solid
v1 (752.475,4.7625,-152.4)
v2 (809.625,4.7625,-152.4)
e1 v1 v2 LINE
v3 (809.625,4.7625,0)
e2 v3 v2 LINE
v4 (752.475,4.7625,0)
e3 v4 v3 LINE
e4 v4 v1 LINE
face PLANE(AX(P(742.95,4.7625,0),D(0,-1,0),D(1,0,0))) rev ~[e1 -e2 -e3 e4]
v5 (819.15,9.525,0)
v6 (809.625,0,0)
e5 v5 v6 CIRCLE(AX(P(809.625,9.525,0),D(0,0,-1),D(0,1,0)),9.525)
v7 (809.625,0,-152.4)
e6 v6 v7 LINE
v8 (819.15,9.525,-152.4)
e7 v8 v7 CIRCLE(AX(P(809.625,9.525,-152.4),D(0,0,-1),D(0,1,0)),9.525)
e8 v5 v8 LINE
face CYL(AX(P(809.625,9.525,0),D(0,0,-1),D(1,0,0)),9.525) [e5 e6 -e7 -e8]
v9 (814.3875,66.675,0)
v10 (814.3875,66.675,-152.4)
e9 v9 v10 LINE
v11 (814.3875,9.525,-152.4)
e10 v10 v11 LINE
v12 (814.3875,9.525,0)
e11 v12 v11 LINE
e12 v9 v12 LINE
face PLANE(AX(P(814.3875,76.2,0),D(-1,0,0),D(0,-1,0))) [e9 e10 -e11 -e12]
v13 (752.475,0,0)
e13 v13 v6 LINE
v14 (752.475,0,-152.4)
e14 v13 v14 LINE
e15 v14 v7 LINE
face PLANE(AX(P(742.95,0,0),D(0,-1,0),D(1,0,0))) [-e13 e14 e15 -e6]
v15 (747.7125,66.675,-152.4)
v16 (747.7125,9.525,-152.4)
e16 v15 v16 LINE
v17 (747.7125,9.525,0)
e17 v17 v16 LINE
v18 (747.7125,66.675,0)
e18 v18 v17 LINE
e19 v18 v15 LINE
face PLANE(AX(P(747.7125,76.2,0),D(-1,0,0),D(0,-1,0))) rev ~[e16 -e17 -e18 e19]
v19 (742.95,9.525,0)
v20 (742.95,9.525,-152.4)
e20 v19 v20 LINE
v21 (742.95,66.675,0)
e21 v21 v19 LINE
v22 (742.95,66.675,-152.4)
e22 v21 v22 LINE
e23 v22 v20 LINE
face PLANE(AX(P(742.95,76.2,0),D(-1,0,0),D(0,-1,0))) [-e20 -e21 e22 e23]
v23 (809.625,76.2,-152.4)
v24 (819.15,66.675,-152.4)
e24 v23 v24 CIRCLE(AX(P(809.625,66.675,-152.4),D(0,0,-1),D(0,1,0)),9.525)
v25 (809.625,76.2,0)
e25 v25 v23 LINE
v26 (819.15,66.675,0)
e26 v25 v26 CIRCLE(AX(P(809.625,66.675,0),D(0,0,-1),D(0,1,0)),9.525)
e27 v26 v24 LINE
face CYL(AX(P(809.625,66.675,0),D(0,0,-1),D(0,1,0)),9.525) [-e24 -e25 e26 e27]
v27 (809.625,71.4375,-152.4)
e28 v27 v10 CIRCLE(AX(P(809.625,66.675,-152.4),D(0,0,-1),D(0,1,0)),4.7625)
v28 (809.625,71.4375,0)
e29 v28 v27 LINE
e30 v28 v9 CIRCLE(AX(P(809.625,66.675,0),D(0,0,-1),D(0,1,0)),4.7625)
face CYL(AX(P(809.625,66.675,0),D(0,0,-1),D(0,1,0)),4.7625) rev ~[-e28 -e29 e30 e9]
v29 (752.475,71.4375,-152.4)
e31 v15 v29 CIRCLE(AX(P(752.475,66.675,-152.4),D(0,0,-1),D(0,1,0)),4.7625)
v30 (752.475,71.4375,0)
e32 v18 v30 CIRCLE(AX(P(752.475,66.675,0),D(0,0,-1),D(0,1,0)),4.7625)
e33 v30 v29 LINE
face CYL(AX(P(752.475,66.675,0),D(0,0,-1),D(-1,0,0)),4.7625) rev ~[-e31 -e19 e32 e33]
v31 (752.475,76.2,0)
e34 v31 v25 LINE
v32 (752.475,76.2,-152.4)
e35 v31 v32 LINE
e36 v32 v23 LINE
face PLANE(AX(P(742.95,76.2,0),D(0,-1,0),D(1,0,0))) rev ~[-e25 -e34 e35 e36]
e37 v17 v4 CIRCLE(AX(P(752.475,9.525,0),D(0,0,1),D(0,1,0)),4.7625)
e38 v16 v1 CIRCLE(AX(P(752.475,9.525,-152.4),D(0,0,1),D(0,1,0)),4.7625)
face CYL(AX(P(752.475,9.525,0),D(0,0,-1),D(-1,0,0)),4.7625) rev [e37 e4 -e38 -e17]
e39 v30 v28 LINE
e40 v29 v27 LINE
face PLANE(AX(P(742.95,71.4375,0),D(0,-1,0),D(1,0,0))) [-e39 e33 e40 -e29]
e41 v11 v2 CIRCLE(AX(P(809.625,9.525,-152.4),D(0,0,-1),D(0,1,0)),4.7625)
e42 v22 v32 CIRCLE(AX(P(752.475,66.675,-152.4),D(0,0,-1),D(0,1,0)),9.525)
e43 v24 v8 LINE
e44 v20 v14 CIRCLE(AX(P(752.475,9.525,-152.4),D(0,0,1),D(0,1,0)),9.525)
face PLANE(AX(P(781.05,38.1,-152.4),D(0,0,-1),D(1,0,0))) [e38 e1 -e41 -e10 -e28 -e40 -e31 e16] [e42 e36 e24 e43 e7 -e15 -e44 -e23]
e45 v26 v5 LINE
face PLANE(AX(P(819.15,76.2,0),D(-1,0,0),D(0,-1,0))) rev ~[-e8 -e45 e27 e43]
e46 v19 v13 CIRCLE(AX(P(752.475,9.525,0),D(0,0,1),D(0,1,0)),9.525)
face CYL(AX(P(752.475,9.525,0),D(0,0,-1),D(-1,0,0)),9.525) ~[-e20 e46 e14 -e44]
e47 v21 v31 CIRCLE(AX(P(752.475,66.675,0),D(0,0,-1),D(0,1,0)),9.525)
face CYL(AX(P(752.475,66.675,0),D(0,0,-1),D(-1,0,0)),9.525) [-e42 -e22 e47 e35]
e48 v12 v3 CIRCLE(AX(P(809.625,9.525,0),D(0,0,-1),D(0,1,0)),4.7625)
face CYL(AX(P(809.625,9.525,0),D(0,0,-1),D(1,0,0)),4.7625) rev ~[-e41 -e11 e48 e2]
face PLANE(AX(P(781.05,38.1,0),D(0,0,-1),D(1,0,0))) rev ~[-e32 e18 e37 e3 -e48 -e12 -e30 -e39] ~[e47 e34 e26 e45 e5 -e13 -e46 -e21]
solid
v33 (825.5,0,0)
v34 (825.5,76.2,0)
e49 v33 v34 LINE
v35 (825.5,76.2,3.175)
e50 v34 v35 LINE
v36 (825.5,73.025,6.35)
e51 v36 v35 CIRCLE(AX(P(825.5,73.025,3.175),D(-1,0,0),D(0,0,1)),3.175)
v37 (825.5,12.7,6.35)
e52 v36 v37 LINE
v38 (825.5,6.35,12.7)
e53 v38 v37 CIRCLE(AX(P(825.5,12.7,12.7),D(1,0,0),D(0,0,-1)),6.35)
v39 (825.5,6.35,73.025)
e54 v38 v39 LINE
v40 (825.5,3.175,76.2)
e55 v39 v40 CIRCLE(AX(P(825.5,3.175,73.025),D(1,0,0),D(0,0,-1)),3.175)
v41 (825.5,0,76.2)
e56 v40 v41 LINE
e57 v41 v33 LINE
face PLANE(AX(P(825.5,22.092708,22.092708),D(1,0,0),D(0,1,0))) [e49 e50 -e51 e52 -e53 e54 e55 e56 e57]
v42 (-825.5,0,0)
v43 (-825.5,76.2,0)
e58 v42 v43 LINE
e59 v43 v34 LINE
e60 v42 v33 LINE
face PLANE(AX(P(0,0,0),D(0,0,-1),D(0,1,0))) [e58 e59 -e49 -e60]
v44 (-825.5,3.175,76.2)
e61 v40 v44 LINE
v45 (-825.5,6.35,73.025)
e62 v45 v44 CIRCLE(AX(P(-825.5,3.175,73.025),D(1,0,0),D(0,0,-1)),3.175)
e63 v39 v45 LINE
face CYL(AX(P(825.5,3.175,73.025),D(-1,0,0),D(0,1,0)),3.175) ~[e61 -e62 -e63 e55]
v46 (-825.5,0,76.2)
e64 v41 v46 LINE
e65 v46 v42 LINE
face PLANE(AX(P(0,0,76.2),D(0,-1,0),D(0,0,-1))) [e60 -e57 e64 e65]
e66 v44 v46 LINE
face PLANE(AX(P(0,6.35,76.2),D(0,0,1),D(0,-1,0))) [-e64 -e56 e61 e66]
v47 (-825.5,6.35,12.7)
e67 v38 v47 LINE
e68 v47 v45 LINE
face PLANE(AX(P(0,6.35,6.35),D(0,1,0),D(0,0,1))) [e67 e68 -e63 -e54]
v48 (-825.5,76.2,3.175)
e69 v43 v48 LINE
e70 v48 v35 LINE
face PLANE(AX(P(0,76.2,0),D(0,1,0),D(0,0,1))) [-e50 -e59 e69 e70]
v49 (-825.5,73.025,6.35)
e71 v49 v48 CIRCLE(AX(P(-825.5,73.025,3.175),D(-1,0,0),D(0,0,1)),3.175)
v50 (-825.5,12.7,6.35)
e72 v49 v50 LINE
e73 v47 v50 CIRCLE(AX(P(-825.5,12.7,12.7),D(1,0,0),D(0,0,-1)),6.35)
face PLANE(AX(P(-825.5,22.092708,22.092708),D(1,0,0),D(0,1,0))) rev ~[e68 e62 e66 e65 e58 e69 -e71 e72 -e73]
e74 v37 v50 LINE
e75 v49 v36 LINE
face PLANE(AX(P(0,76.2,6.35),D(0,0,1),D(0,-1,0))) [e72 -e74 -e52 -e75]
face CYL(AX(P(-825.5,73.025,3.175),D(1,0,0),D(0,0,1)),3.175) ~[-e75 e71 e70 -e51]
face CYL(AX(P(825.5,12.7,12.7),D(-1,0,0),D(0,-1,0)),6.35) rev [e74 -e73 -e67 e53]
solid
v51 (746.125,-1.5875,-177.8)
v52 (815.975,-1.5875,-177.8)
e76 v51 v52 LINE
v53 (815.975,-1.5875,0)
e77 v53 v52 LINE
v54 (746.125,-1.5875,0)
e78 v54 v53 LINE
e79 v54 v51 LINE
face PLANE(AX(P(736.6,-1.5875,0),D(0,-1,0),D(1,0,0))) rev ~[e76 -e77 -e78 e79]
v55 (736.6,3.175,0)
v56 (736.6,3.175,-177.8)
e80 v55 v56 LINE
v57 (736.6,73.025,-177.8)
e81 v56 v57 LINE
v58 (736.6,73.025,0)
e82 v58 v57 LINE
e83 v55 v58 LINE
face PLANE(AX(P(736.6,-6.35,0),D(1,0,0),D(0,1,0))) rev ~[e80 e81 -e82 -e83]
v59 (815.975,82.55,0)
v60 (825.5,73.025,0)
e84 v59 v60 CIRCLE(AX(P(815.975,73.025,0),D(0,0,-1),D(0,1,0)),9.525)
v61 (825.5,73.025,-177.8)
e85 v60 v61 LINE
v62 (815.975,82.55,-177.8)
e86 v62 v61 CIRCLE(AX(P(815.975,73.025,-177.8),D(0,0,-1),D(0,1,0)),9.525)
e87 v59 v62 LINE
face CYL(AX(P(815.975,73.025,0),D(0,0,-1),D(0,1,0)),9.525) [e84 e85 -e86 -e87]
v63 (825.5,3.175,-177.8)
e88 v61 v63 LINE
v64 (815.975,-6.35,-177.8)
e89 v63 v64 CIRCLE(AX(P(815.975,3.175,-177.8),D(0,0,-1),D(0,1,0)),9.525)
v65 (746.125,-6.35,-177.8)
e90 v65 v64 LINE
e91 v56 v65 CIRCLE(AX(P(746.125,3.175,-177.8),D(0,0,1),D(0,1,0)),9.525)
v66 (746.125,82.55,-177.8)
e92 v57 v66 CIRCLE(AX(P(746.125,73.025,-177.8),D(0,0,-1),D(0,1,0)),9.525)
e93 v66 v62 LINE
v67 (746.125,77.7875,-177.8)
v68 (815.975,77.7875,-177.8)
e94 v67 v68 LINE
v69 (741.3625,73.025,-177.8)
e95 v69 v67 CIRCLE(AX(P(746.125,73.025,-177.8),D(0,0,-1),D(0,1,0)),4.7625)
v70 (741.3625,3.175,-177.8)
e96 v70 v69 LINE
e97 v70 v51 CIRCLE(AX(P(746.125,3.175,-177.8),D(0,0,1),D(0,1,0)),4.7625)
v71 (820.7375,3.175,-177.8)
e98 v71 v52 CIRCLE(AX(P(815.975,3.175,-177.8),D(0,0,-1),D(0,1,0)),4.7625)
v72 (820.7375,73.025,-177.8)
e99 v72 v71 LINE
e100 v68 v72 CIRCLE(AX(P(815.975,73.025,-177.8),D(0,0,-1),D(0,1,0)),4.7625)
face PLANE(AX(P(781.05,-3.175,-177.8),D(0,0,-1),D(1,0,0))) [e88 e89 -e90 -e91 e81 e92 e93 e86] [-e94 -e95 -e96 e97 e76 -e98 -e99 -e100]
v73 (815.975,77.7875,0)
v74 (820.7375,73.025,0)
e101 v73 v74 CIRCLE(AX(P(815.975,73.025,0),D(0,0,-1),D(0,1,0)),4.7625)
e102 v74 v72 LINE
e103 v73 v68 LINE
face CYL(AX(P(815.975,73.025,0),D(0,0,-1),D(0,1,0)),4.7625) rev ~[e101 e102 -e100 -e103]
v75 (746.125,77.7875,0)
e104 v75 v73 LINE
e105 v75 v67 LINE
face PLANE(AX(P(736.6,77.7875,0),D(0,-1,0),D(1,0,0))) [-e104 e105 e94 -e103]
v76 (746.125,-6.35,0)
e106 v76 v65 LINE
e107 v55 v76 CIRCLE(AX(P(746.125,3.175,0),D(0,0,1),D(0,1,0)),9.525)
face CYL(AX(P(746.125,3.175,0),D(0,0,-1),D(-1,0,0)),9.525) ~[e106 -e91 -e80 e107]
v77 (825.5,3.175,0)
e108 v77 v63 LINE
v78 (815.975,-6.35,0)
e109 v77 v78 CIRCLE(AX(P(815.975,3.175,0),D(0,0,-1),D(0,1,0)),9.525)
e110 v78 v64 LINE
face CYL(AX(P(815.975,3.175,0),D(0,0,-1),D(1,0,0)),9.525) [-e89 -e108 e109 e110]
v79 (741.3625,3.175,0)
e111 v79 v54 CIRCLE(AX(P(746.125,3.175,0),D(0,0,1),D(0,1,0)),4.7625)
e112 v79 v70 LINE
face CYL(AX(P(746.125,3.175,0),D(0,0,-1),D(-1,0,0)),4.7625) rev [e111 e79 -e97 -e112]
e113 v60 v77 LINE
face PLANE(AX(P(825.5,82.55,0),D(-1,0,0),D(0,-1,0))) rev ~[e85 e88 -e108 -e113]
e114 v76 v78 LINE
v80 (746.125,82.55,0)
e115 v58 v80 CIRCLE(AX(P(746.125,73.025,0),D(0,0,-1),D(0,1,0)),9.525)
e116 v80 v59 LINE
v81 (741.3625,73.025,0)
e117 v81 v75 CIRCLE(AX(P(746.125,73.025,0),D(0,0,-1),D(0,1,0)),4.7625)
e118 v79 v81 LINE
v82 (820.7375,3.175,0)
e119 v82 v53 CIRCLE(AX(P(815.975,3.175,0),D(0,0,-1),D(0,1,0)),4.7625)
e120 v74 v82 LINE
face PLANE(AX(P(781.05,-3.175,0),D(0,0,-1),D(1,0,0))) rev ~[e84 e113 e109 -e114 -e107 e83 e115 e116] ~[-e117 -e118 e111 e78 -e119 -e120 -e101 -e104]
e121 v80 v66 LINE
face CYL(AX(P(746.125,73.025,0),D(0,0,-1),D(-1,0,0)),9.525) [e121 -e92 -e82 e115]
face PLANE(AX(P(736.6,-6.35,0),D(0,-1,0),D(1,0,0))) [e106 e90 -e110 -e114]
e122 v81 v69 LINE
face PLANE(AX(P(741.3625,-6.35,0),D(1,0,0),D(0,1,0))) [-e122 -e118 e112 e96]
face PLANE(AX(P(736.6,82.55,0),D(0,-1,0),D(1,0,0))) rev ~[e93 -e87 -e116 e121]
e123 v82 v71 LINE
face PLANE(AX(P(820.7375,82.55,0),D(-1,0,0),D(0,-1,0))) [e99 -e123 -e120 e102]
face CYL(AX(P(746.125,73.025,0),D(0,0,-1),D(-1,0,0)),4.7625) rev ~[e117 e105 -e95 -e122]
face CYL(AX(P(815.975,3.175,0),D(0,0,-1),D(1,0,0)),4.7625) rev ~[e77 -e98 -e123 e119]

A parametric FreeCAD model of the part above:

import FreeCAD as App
import Part
import Sketcher

V = App.Vector
Q = App.Units.Quantity


def edges_at(feature, points):
    """Names of the edges that pass closest to the given points."""
    edges = feature.Shape.Edges
    near = lambda p: min(range(len(edges)), key=lambda i: edges[i].distToShape(Part.Vertex(*p))[0])
    return sorted({f"Edge{near(p) + 1}" for p in points})


def faces_at(feature, points):
    """Names of the faces that lie closest to the given points."""
    faces = feature.Shape.Faces
    near = lambda p: min(range(len(faces)), key=lambda i: faces[i].distToShape(Part.Vertex(*p))[0])
    return sorted({f"Face{near(p) + 1}" for p in points})

doc = App.newDocument("Part")
params = doc.addObject("Spreadsheet::Sheet", "Params")
for row, (alias, value) in enumerate([
    ("sketch1_width", "3 in"),
    ("sketch1_width2", "2.75 in"),
    ("pad1_length", "65 in"),
    ("fillet_radius", "0.25 in"),
    ("fillet2_radius", "0.125 in"),
    ("sketch2_width", "3 in"),
    ("pad2_length", "6 in"),
    ("fillet3_radius", "0.375 in"),
    ("thickness_wall", "0.1875 in"),
    ("sketch3_width", "3.5 in"),
    ("pad3_length", "7 in"),
    ("fillet4_radius", "0.375 in"),
    ("thickness2_wall", "0.1875 in"),
], start=1):
    params.set(f"A{row}", alias)
    params.set(f"B{row}", "=" + value)
    params.setAlias(f"B{row}", alias)

body = doc.addObject("PartDesign::Body", "Body")

# Sketch on YZ plane
sketch1 = body.newObject("Sketcher::SketchObject", "Sketch")
sketch1.AttachmentSupport = (doc.getObject("YZ_Plane"), [""])
sketch1.MapMode = "FlatFace"
sketch1.addGeometry([
    Part.LineSegment(V(0, 76, 0), V(0, 0, 0)),  # 0
    Part.LineSegment(V(0, 0, 0), V(76, 0, 0)),  # 1
    Part.LineSegment(V(76, 0, 0), V(76, 6, 0)),  # 2
    Part.LineSegment(V(76, 6, 0), V(6, 6, 0)),  # 3
    Part.LineSegment(V(6, 6, 0), V(6, 76, 0)),  # 4
    Part.LineSegment(V(6, 76, 0), V(0, 76, 0)),  # 5
], False)
sketch1.addConstraint([
    Sketcher.Constraint("Coincident", 0, 2, 1, 1),
    Sketcher.Constraint("Coincident", 1, 2, 2, 1),
    Sketcher.Constraint("Coincident", 2, 2, 3, 1),
    Sketcher.Constraint("Coincident", 3, 2, 4, 1),
    Sketcher.Constraint("Coincident", 4, 2, 5, 1),
    Sketcher.Constraint("Coincident", 5, 2, 0, 1),
    Sketcher.Constraint("Vertical", 0),
    Sketcher.Constraint("Horizontal", 1),
    Sketcher.Constraint("Vertical", 2),
    Sketcher.Constraint("Horizontal", 3),
    Sketcher.Constraint("Vertical", 4),
    Sketcher.Constraint("Horizontal", 5),
    Sketcher.Constraint("Coincident", 0, 2, -1, 1),
    Sketcher.Constraint("Equal", 1, 0),
    Sketcher.Constraint("Equal", 5, 2),
    Sketcher.Constraint("DistanceX", 1, 1, 1, 2, Q("3 in")),
    Sketcher.Constraint("DistanceX", 3, 2, 3, 1, Q("2.75 in")),
])
sketch1.setExpression("Constraints[15]", "Params.sketch1_width")
sketch1.setExpression("Constraints[16]", "Params.sketch1_width2")
pad1 = body.newObject("PartDesign::Pad", "Pad")
pad1.Profile = sketch1
pad1.setExpression("Length", "Params.pad1_length")
pad1.Midplane = True
doc.recompute()

fillet = body.newObject("PartDesign::Fillet", "Fillet")
fillet.Base = (pad1, edges_at(pad1, [(0, 6.35, 6.35)]))
fillet.setExpression("Radius", "Params.fillet_radius")
doc.recompute()

fillet2 = body.newObject("PartDesign::Fillet", "Fillet001")
fillet2.Base = (fillet, edges_at(fillet, [(0, 6.35, 76.2), (0, 76.2, 6.35)]))
fillet2.setExpression("Radius", "Params.fillet2_radius")
body2 = doc.addObject("PartDesign::Body", "Body001")

# Sketch on XY plane
sketch2 = body2.newObject("Sketcher::SketchObject", "Sketch001")
sketch2.AttachmentSupport = (doc.getObject("XY_Plane001"), [""])
sketch2.MapMode = "FlatFace"
sketch2.addGeometry([
    Part.LineSegment(V(743, 0, 0), V(743, 76, 0)),
    Part.LineSegment(V(743, 76, 0), V(819, 76, 0)),
    Part.LineSegment(V(819, 76, 0), V(819, 0, 0)),
    Part.LineSegment(V(819, 0, 0), V(743, 0, 0)),
], False)
sketch2.addConstraint([
    Sketcher.Constraint("Coincident", 0, 2, 1, 1),
    Sketcher.Constraint("Coincident", 1, 2, 2, 1),
    Sketcher.Constraint("Coincident", 2, 2, 3, 1),
    Sketcher.Constraint("Coincident", 3, 2, 0, 1),
    Sketcher.Constraint("Vertical", 0),
    Sketcher.Constraint("Horizontal", 1),
    Sketcher.Constraint("Vertical", 2),
    Sketcher.Constraint("Horizontal", 3),
    Sketcher.Constraint("PointOnObject", 2, 2, -1),
    Sketcher.Constraint("Equal", 3, 0),
    Sketcher.Constraint("DistanceX", 1, 1, 1, 2, Q("3 in")),
    Sketcher.Constraint("DistanceX", -1, 1, 0, 2, Q("29.25 in")),
])
sketch2.setExpression("Constraints[10]", "Params.sketch2_width")
pad2 = body2.newObject("PartDesign::Pad", "Pad001")
pad2.Profile = sketch2
pad2.setExpression("Length", "Params.pad2_length")
pad2.Reversed = True
doc.recompute()

fillet3 = body2.newObject("PartDesign::Fillet", "Fillet002")
fillet3.Base = (pad2, edges_at(pad2, [
    (742.95, 76.2, -76.2),
    (742.95, 0, -76.2),
    (819.15, 76.2, -76.2),
    (819.15, 0, -76.2),
]))
fillet3.setExpression("Radius", "Params.fillet3_radius")
doc.recompute()

thickness = body2.newObject("PartDesign::Thickness", "Thickness")
thickness.Base = (fillet3, faces_at(fillet3, [(781.05, 38.1, -152.4), (781.05, 38.1, 0)]))
thickness.setExpression("Value", "Params.thickness_wall")
thickness.Reversed = True
thickness.Join = "Arc"
body3 = doc.addObject("PartDesign::Body", "Body002")

# Sketch on XY plane
sketch3 = body3.newObject("Sketcher::SketchObject", "Sketch002")
sketch3.AttachmentSupport = (doc.getObject("XY_Plane002"), [""])
sketch3.MapMode = "FlatFace"
sketch3.addGeometry([
    Part.LineSegment(V(737, -6, 0), V(737, 83, 0)),
    Part.LineSegment(V(737, 83, 0), V(826, 83, 0)),
    Part.LineSegment(V(826, 83, 0), V(826, -6, 0)),
    Part.LineSegment(V(826, -6, 0), V(737, -6, 0)),
], False)
sketch3.addConstraint([
    Sketcher.Constraint("Coincident", 0, 2, 1, 1),
    Sketcher.Constraint("Coincident", 1, 2, 2, 1),
    Sketcher.Constraint("Coincident", 2, 2, 3, 1),
    Sketcher.Constraint("Coincident", 3, 2, 0, 1),
    Sketcher.Constraint("Vertical", 0),
    Sketcher.Constraint("Horizontal", 1),
    Sketcher.Constraint("Vertical", 2),
    Sketcher.Constraint("Horizontal", 3),
    Sketcher.Constraint("Equal", 3, 0),
    Sketcher.Constraint("DistanceX", 1, 1, 1, 2, Q("3.5 in")),
    Sketcher.Constraint("DistanceX", -1, 1, 0, 2, Q("29 in")),
    Sketcher.Constraint("DistanceY", -1, 1, 0, 2, Q("3.25 in")),
])
sketch3.setExpression("Constraints[9]", "Params.sketch3_width")
pad3 = body3.newObject("PartDesign::Pad", "Pad002")
pad3.Profile = sketch3
pad3.setExpression("Length", "Params.pad3_length")
pad3.Reversed = True
doc.recompute()

fillet4 = body3.newObject("PartDesign::Fillet", "Fillet003")
fillet4.Base = (pad3, edges_at(pad3, [
    (825.5, 82.55, -88.9),
    (736.6, 82.55, -88.9),
    (736.6, -6.35, -88.9),
    (825.5, -6.35, -88.9),
]))
fillet4.setExpression("Radius", "Params.fillet4_radius")
doc.recompute()

thickness2 = body3.newObject("PartDesign::Thickness", "Thickness001")
thickness2.Base = (fillet4, faces_at(fillet4, [(781.05, 38.1, -177.8), (781.05, 38.1, 0)]))
thickness2.setExpression("Value", "Params.thickness2_wall")
thickness2.Reversed = True
thickness2.Join = "Arc"

doc.recompute()
